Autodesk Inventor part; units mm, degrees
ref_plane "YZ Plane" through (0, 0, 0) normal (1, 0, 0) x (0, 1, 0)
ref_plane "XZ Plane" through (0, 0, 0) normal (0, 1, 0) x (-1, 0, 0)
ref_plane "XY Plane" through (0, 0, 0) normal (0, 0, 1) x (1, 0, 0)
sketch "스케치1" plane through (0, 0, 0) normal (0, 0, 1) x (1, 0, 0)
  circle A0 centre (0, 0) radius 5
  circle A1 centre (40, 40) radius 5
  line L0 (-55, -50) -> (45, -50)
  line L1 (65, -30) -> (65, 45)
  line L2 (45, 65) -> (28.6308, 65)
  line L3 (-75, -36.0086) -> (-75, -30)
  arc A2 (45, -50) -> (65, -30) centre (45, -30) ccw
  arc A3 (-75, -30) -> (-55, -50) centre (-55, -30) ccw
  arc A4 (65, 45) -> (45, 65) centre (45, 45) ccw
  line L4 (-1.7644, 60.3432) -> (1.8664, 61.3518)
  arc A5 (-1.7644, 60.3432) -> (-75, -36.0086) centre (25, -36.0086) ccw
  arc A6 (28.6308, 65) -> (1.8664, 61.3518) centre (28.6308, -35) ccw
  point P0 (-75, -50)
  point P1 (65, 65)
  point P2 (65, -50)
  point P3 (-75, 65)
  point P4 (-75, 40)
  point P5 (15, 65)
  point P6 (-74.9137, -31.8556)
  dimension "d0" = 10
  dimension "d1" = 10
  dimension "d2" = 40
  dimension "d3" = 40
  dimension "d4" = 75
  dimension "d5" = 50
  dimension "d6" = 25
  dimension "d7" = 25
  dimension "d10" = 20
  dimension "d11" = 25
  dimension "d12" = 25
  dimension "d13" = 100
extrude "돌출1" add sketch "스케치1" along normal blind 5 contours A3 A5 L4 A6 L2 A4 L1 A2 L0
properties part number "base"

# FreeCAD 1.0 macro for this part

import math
import FreeCAD as App
import Part
import Sketcher
Q = App.Units.Quantity

doc = App.newDocument("Part")
params = doc.addObject("Spreadsheet::Sheet", "Params")
for row, (alias, value) in enumerate([
    ("sketch1_diameter", "10 mm"),
    ("sketch1_diameter2", "10 mm"),
    ("sketch1_radius", "20 mm"),
    ("sketch1_radius2", "20 mm"),
    ("sketch1_radius3", "20 mm"),
    ("pad1_length", "5 mm"),
], start=1):
    params.set(f"A{row}", alias)
    params.set(f"B{row}", "=" + value)
    params.setAlias(f"B{row}", alias)

body = doc.addObject("PartDesign::Body", "Body")

# Sketch on XY plane
sketch1 = body.newObject("Sketcher::SketchObject", "Sketch")
sketch1.AttachmentSupport = (doc.getObject("XY_Plane"), [""])
sketch1.MapMode = "FlatFace"
sketch1.addGeometry(Part.ArcOfCircle(Part.Circle(App.Vector(-55, -30, 0), App.Vector(0, 0, 1), 20), math.radians(-174.676316), math.radians(-90)), False)
sketch1.addGeometry(Part.LineSegment(App.Vector(-55, -50, 0), App.Vector(45, -50, 0)), False)
sketch1.addGeometry(Part.ArcOfCircle(Part.Circle(App.Vector(45, -30, 0), App.Vector(0, 0, 1), 20), math.radians(-90), math.radians(0)), False)
sketch1.addGeometry(Part.LineSegment(App.Vector(65, -30, 0), App.Vector(65, 45, 0)), False)
sketch1.addGeometry(Part.ArcOfCircle(Part.Circle(App.Vector(45, 45, 0), App.Vector(0, 0, 1), 20), math.radians(0), math.radians(90)), False)
sketch1.addGeometry(Part.LineSegment(App.Vector(45, 65, 0), App.Vector(28.6308, 65, 0)), False)
sketch1.addGeometry(Part.ArcOfCircle(Part.Circle(App.Vector(28.6308, -35, 0), App.Vector(0, 0, 1), 100), math.radians(90), math.radians(105.524117)), False)
sketch1.addGeometry(Part.LineSegment(App.Vector(1.8664, 61.3518, 0), App.Vector(-1.7644, 60.3432, 0)), False)
sketch1.addGeometry(Part.ArcOfCircle(Part.Circle(App.Vector(25, -36.0086, 0), App.Vector(0, 0, 1), 100.000012), math.radians(105.524117), math.radians(177.619847)), False)
sketch1.addGeometry(Part.Circle(App.Vector(0, 0, 0), App.Vector(0, 0, 1), 5), False)
sketch1.addGeometry(Part.Circle(App.Vector(40, 40, 0), App.Vector(0, 0, 1), 5), False)
sketch1.addConstraint(Sketcher.Constraint("Coincident", 0, 2, 1, 1))
sketch1.addConstraint(Sketcher.Constraint("Coincident", 1, 2, 2, 1))
sketch1.addConstraint(Sketcher.Constraint("Coincident", 2, 2, 3, 1))
sketch1.addConstraint(Sketcher.Constraint("Coincident", 3, 2, 4, 1))
sketch1.addConstraint(Sketcher.Constraint("Coincident", 4, 2, 5, 1))
sketch1.addConstraint(Sketcher.Constraint("Coincident", 5, 2, 6, 1))
sketch1.addConstraint(Sketcher.Constraint("Coincident", 6, 2, 7, 1))
sketch1.addConstraint(Sketcher.Constraint("Coincident", 7, 2, 8, 1))
sketch1.addConstraint(Sketcher.Constraint("Coincident", 8, 2, 0, 1))
sketch1.addConstraint(Sketcher.Constraint("Horizontal", 1))
sketch1.addConstraint(Sketcher.Constraint("Vertical", 3))
sketch1.addConstraint(Sketcher.Constraint("Horizontal", 5))
sketch1.addConstraint(Sketcher.Constraint("Coincident", 9, 3, -1, 1))
sketch1.addConstraint(Sketcher.Constraint("Diameter", 9, Q("10 mm")))
sketch1.addConstraint(Sketcher.Constraint("Diameter", 10, Q("10 mm")))
sketch1.addConstraint(Sketcher.Constraint("Radius", 0, Q("20 mm")))
sketch1.addConstraint(Sketcher.Constraint("Radius", 2, Q("20 mm")))
sketch1.addConstraint(Sketcher.Constraint("Radius", 4, Q("20 mm")))
sketch1.addConstraint(Sketcher.Constraint("Radius", 6, Q("100 mm")))
sketch1.addConstraint(Sketcher.Constraint("Radius", 8, Q("100 mm")))
sketch1.addConstraint(Sketcher.Constraint("DistanceX", 1, 1, 1, 2, Q("100 mm")))
sketch1.addConstraint(Sketcher.Constraint("DistanceY", 3, 1, 3, 2, Q("75 mm")))
sketch1.addConstraint(Sketcher.Constraint("DistanceX", -1, 1, 8, 3, Q("25 mm")))
sketch1.addConstraint(Sketcher.Constraint("DistanceX", -1, 1, 10, 3, Q("40 mm")))
sketch1.addConstraint(Sketcher.Constraint("DistanceY", -1, 1, 10, 3, Q("40 mm")))
sketch1.addConstraint(Sketcher.Constraint("DistanceY", 0, 2, -1, 1, Q("50 mm")))
sketch1.addConstraint(Sketcher.Constraint("DistanceX", 0, 3, 2, 3, Q("100 mm")))
sketch1.addConstraint(Sketcher.Constraint("DistanceY", 2, 3, 4, 3, Q("75 mm")))
sketch1.addConstraint(Sketcher.Constraint("DistanceX", 8, 3, 2, 3, Q("20 mm")))
sketch1.addConstraint(Sketcher.Constraint("DistanceX", 0, 2, 2, 3, Q("100 mm")))
sketch1.addConstraint(Sketcher.Constraint("DistanceY", 1, 2, 2, 2, Q("20 mm")))
sketch1.addConstraint(Sketcher.Constraint("DistanceX", 4, 2, 3, 2, Q("20 mm")))
sketch1.addConstraint(Sketcher.Constraint("DistanceX", 5, 2, 5, 1, Q("16.3692 mm")))
sketch1.addConstraint(Sketcher.Constraint("DistanceY", 8, 3, 8, 2, Q("4.153 mm")))
sketch1.addConstraint(Sketcher.Constraint("Distance", 7, Q("3.7683 mm")))
sketch1.addConstraint(Sketcher.Constraint("DistanceX", -1, 1, 6, 3, Q("28.6308 mm")))
sketch1.addConstraint(Sketcher.Constraint("DistanceX", -1, 1, 6, 2, Q("1.8664 mm")))
sketch1.setExpression("Constraints[13]", "Params.sketch1_diameter")
sketch1.setExpression("Constraints[14]", "Params.sketch1_diameter2")
sketch1.setExpression("Constraints[15]", "Params.sketch1_radius")
sketch1.setExpression("Constraints[16]", "Params.sketch1_radius2")
sketch1.setExpression("Constraints[17]", "Params.sketch1_radius3")
pad1 = body.newObject("PartDesign::Pad", "Pad")
pad1.Profile = sketch1
pad1.setExpression("Length", "Params.pad1_length")

doc.recompute()
